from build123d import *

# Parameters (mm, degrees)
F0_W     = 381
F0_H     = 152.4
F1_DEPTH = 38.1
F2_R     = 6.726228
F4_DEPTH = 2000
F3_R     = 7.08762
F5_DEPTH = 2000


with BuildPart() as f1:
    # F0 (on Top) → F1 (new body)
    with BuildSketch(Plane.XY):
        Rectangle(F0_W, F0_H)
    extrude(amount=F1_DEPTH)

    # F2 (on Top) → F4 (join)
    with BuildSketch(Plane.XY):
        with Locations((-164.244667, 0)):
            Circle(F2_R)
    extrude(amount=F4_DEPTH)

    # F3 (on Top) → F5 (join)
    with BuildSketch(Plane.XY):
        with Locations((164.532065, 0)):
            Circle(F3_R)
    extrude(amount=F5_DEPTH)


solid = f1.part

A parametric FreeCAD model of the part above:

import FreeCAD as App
import Part
import Sketcher

V = App.Vector
Q = App.Units.Quantity


def add_polygon(sketch, points):
    """Adds a closed chain of lines whose ends are joined by coincident constraints."""
    first, n = sketch.GeometryCount, len(points)
    for a, b in zip(points, points[1:] + points[:1]):
        sketch.addGeometry(Part.LineSegment(App.Vector(*a, 0), App.Vector(*b, 0)), False)
    for i in range(n):
        sketch.addConstraint(Sketcher.Constraint("Coincident", first + i, 2, first + (i + 1) % n, 1))

doc = App.newDocument("Part")
body = doc.addObject("PartDesign::Body", "Body")

sketch1 = doc.addObject("Sketcher::SketchObject", "Sketch")
body.addObject(sketch1)
sketch1.AttachmentSupport = (doc.XY_Plane, [""])
sketch1.MapMode = "FlatFace"
add_polygon(sketch1, [(-190, 76), (-190, -76), (190, -76), (190, 76)])
sketch1.addConstraint([
    Sketcher.Constraint("Vertical", 0),
    Sketcher.Constraint("Horizontal", 1),
    Sketcher.Constraint("Vertical", 2),
    Sketcher.Constraint("Horizontal", 3),
    Sketcher.Constraint("Symmetric", 0, 2, 2, 2, -1, 1),
    Sketcher.Constraint("DistanceX", 1, 1, 1, 2, Q("15 in")),
    Sketcher.Constraint("DistanceY", 0, 2, 0, 1, Q("6 in")),
])
pad1 = doc.addObject("PartDesign::Pad", "Pad")
body.addObject(pad1)
pad1.Profile = sketch1
pad1.Length = Q("1.5 in")

sketch2 = doc.addObject("Sketcher::SketchObject", "Sketch001")
body.addObject(sketch2)
sketch2.AttachmentSupport = (doc.XY_Plane, [""])
sketch2.MapMode = "FlatFace"
sketch2.addGeometry(Part.Circle(V(-164, 0, 0), V(0, 0, 1), 7), False)
sketch2.addConstraint([
    Sketcher.Constraint("PointOnObject", 0, 3, -1),
    Sketcher.Constraint("Diameter", 0, 13.452456),
    Sketcher.Constraint("DistanceX", 0, 3, -1, 1, 164.244667),
])
pad2 = doc.addObject("PartDesign::Pad", "Pad001")
body.addObject(pad2)
pad2.Profile = sketch2
pad2.Length = 2000

sketch3 = doc.addObject("Sketcher::SketchObject", "Sketch002")
body.addObject(sketch3)
sketch3.AttachmentSupport = (doc.XY_Plane, [""])
sketch3.MapMode = "FlatFace"
sketch3.addGeometry(Part.Circle(V(165, 0, 0), V(0, 0, 1), 7), False)
sketch3.addConstraint([
    Sketcher.Constraint("PointOnObject", 0, 3, -1),
    Sketcher.Constraint("Diameter", 0, 14.17524),
    Sketcher.Constraint("DistanceX", -1, 1, 0, 3, 164.532065),
])
pad3 = doc.addObject("PartDesign::Pad", "Pad002")
body.addObject(pad3)
pad3.Profile = sketch3
pad3.Length = 2000

doc.recompute()
